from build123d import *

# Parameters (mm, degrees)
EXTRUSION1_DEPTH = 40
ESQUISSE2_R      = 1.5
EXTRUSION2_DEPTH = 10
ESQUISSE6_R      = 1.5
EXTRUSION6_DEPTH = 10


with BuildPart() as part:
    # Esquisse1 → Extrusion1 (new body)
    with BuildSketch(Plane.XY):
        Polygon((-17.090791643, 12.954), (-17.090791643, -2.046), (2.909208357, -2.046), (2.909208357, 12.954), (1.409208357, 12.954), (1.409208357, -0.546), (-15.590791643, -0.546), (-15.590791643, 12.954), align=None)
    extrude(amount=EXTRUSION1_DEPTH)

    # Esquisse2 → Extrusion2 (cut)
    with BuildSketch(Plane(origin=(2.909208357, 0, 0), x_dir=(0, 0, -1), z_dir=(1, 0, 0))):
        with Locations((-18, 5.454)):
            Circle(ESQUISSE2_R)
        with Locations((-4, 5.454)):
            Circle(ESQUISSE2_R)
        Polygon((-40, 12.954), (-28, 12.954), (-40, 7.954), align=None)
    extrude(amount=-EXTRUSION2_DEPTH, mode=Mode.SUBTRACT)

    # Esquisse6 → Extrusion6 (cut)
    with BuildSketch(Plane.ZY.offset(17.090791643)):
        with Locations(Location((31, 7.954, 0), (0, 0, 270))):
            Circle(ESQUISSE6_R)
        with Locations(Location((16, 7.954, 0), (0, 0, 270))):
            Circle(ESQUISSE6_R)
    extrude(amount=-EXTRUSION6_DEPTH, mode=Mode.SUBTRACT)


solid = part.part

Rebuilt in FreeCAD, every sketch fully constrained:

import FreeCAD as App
import Part
import Sketcher
Q = App.Units.Quantity


def add_polygon(sketch, points):
    """Adds a closed chain of lines whose ends are joined by coincident constraints."""
    first, n = sketch.GeometryCount, len(points)
    for a, b in zip(points, points[1:] + points[:1]):
        sketch.addGeometry(Part.LineSegment(App.Vector(*a, 0), App.Vector(*b, 0)), False)
    for i in range(n):
        sketch.addConstraint(Sketcher.Constraint("Coincident", first + i, 2, first + (i + 1) % n, 1))

doc = App.newDocument("Part")
body = doc.addObject("PartDesign::Body", "Body")

# Sketch on XY plane
sketch1 = doc.addObject("Sketcher::SketchObject", "Sketch")
body.addObject(sketch1)
sketch1.AttachmentSupport = (doc.XY_Plane, [""])
sketch1.MapMode = "FlatFace"
add_polygon(sketch1, [(-17.090792, 12.954), (-17.090792, -2.046), (2.909208, -2.046), (2.909208, 12.954), (1.409208, 12.954), (1.409208, -0.546), (-15.590792, -0.546), (-15.590792, 12.954)])  # lines 0-7
sketch1.addConstraint([
    Sketcher.Constraint("Vertical", 0),
    Sketcher.Constraint("Horizontal", 1),
    Sketcher.Constraint("Vertical", 2),
    Sketcher.Constraint("Horizontal", 3),
    Sketcher.Constraint("Vertical", 4),
    Sketcher.Constraint("Horizontal", 5),
    Sketcher.Constraint("Vertical", 6),
    Sketcher.Constraint("Horizontal", 7),
    Sketcher.Constraint("Horizontal", 3, 2, 6, 2),
    Sketcher.Constraint("Equal", 3, 7),
    Sketcher.Constraint("DistanceX", 1, 1, 1, 2, Q("20 mm")),
    Sketcher.Constraint("DistanceX", 5, 2, 5, 1, Q("17 mm")),
    Sketcher.Constraint("DistanceY", 0, 2, 0, 1, Q("15 mm")),
    Sketcher.Constraint("DistanceY", 4, 2, 4, 1, Q("13.5 mm")),
    Sketcher.Constraint("DistanceY", 0, 2, -1, 1, Q("2.046 mm")),
    Sketcher.Constraint("DistanceX", 0, 2, -1, 1, Q("17.090792 mm")),
])
pad1 = doc.addObject("PartDesign::Pad", "Pad")
body.addObject(pad1)
pad1.Profile = sketch1
pad1.Length = 40

# Sketch on YZ plane
sketch2 = doc.addObject("Sketcher::SketchObject", "Sketch001")
body.addObject(sketch2)
sketch2.AttachmentSupport = (doc.YZ_Plane, [""])
sketch2.MapMode = "FlatFace"
sketch2.AttachmentOffset = App.Placement(App.Vector(0, 0, 2.909208), App.Rotation())
sketch2.addGeometry(Part.Circle(App.Vector(5.454, 18, 0), App.Vector(0, 0, 1), 1.5), False)  # 0
sketch2.addGeometry(Part.Circle(App.Vector(5.454, 4, 0), App.Vector(0, 0, 1), 1.5), False)  # 1
add_polygon(sketch2, [(12.954, 28), (12.954, 40), (7.954, 40)])  # lines 2-4
sketch2.addConstraint([
    Sketcher.Constraint("Vertical", 2),
    Sketcher.Constraint("Horizontal", 3),
    Sketcher.Constraint("Equal", 0, 1),
    Sketcher.Constraint("Vertical", 0, 3, 1, 3),
    Sketcher.Constraint("Diameter", 0, Q("3 mm")),
    Sketcher.Constraint("DistanceX", 3, 2, 3, 1, Q("5 mm")),
    Sketcher.Constraint("DistanceY", 2, 1, 2, 2, Q("12 mm")),
    Sketcher.Constraint("DistanceY", -1, 1, 0, 3, Q("18 mm")),
    Sketcher.Constraint("DistanceY", -1, 1, 1, 3, Q("4 mm")),
    Sketcher.Constraint("DistanceY", -1, 1, 2, 2, Q("40 mm")),
    Sketcher.Constraint("DistanceX", 0, 3, 2, 2, Q("7.5 mm")),
    Sketcher.Constraint("DistanceX", -1, 1, 0, 3, Q("5.454 mm")),
])
pocket1 = doc.addObject("PartDesign::Pocket", "Pocket")
body.addObject(pocket1)
pocket1.Profile = sketch2
pocket1.Length = 10

# Sketch on YZ plane
sketch3 = doc.addObject("Sketcher::SketchObject", "Sketch002")
body.addObject(sketch3)
sketch3.AttachmentSupport = (doc.YZ_Plane, [""])
sketch3.MapMode = "FlatFace"
sketch3.AttachmentOffset = App.Placement(App.Vector(0, 0, -17.090792), App.Rotation())
sketch3.addGeometry([
    Part.Circle(App.Vector(7.954, 31, 0), App.Vector(0, 0, 1), 1.5),
    Part.Circle(App.Vector(7.954, 16, 0), App.Vector(0, 0, 1), 1.5),
], False)
sketch3.addConstraint([
    Sketcher.Constraint("Equal", 0, 1),
    Sketcher.Constraint("Vertical", 0, 3, 1, 3),
    Sketcher.Constraint("Diameter", 0, Q("3 mm")),
    Sketcher.Constraint("DistanceY", -1, 1, 0, 3, Q("31 mm")),
    Sketcher.Constraint("DistanceY", -1, 1, 1, 3, Q("16 mm")),
    Sketcher.Constraint("DistanceX", -1, 1, 0, 3, Q("7.954 mm")),
])
pocket2 = doc.addObject("PartDesign::Pocket", "Pocket001")
body.addObject(pocket2)
pocket2.Profile = sketch3
pocket2.Length = 10
pocket2.Reversed = True

doc.recompute()
